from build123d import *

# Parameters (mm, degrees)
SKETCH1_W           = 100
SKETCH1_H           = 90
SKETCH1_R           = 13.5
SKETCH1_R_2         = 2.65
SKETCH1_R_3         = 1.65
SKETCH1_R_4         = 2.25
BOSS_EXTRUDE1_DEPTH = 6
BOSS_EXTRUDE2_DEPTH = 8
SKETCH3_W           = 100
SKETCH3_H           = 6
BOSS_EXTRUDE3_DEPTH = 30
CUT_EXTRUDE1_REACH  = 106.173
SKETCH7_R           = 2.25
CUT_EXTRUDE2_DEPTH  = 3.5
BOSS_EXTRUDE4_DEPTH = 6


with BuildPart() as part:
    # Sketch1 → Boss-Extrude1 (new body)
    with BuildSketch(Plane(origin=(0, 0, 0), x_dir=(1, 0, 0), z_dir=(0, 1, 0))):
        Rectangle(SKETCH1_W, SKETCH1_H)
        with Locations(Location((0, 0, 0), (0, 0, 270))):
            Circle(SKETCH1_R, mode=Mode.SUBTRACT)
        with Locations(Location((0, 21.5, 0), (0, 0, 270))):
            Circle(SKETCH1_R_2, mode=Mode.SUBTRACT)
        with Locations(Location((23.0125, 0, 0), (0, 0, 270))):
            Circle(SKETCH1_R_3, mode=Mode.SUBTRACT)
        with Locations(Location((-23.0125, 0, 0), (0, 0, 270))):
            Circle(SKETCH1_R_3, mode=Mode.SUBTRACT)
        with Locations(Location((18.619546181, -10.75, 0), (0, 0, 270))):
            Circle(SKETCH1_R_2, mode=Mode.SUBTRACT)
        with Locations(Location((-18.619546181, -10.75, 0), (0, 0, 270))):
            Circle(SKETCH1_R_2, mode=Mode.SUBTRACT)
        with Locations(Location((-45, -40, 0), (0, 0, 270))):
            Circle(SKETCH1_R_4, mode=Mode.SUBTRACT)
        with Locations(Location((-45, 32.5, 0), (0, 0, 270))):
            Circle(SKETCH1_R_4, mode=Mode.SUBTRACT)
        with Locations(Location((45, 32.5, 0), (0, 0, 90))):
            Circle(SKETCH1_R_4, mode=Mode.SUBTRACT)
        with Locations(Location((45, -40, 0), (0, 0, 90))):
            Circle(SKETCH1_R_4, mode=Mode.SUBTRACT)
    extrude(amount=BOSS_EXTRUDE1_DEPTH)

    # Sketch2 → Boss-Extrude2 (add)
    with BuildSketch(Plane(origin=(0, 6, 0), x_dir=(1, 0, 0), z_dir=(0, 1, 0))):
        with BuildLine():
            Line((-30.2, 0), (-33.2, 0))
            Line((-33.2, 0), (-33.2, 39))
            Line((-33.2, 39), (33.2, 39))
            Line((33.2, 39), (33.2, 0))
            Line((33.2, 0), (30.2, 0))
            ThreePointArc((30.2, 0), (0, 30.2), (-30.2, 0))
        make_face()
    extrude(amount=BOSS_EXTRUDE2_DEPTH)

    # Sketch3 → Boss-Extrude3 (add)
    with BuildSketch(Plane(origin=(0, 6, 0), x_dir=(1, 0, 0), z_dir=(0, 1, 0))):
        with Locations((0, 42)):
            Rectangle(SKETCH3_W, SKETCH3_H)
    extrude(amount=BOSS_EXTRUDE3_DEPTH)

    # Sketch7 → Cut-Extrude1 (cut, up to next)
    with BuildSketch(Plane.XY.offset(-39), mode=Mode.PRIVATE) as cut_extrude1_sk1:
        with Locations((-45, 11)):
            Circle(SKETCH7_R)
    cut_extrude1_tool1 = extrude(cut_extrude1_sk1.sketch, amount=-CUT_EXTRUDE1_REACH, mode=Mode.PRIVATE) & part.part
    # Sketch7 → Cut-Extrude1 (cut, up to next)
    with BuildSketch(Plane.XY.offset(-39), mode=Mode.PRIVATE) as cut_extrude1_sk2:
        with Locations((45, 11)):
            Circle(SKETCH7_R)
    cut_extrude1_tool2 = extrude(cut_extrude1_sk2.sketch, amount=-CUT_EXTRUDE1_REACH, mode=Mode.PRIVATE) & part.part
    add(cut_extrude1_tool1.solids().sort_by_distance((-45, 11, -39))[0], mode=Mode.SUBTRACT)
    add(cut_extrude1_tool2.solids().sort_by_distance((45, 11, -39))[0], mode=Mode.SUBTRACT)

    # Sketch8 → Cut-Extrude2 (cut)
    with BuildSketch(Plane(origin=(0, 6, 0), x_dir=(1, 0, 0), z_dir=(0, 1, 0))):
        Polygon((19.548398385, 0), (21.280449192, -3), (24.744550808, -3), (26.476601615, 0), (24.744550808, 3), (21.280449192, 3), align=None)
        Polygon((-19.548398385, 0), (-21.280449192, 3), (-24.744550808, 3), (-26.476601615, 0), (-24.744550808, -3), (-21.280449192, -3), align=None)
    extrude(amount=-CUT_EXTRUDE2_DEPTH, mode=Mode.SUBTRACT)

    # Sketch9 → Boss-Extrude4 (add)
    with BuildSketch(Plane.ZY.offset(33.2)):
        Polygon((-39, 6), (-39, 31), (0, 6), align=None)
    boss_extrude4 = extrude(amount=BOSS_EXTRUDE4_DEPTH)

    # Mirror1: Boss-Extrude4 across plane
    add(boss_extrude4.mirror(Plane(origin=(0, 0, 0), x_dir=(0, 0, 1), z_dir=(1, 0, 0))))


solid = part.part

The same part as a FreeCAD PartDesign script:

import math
import FreeCAD as App
import Part
import Sketcher
Q = App.Units.Quantity


def add_polygon(sketch, points):
    """Adds a closed chain of lines whose ends are joined by coincident constraints."""
    first, n = sketch.GeometryCount, len(points)
    for a, b in zip(points, points[1:] + points[:1]):
        sketch.addGeometry(Part.LineSegment(App.Vector(*a, 0), App.Vector(*b, 0)), False)
    for i in range(n):
        sketch.addConstraint(Sketcher.Constraint("Coincident", first + i, 2, first + (i + 1) % n, 1))

doc = App.newDocument("Part")
body = doc.addObject("PartDesign::Body", "Body")

# Sketch on XZ plane
sketch1 = doc.addObject("Sketcher::SketchObject", "Sketch")
body.addObject(sketch1)
sketch1.AttachmentSupport = (doc.XZ_Plane, [""])
sketch1.MapMode = "FlatFace"
add_polygon(sketch1, [(-50, -45), (-50, 45), (50, 45), (50, -45)])  # lines 0-3
sketch1.addGeometry(Part.Circle(App.Vector(-45, 40, 0), App.Vector(0, 0, 1), 2.2), False)  # 4
sketch1.addGeometry(Part.Circle(App.Vector(-18.6, 10.8, 0), App.Vector(0, 0, 1), 2.6), False)  # 5
sketch1.addGeometry(Part.Circle(App.Vector(45, 40, 0), App.Vector(0, 0, 1), 2.2), False)  # 6
sketch1.addGeometry(Part.Circle(App.Vector(18.6, 10.8, 0), App.Vector(0, 0, 1), 2.6), False)  # 7
sketch1.addGeometry(Part.Circle(App.Vector(-23, 0, 0), App.Vector(0, 0, 1), 1.6), False)  # 8
sketch1.addGeometry(Part.Circle(App.Vector(-45, -32.5, 0), App.Vector(0, 0, 1), 2.2), False)  # 9
sketch1.addGeometry(Part.Circle(App.Vector(0, 0, 0), App.Vector(0, 0, 1), 13.5), False)  # 10
sketch1.addGeometry(Part.Circle(App.Vector(23, 0, 0), App.Vector(0, 0, 1), 1.6), False)  # 11
sketch1.addGeometry(Part.Circle(App.Vector(0, -21.5, 0), App.Vector(0, 0, 1), 2.6), False)  # 12
sketch1.addGeometry(Part.Circle(App.Vector(45, -32.5, 0), App.Vector(0, 0, 1), 2.2), False)  # 13
sketch1.addConstraint(Sketcher.Constraint("Vertical", 0))
sketch1.addConstraint(Sketcher.Constraint("Horizontal", 1))
sketch1.addConstraint(Sketcher.Constraint("Vertical", 2))
sketch1.addConstraint(Sketcher.Constraint("Horizontal", 3))
sketch1.addConstraint(Sketcher.Constraint("Coincident", 10, 3, -1, 1))
sketch1.addConstraint(Sketcher.Constraint("Equal", 4, 6))
sketch1.addConstraint(Sketcher.Constraint("Equal", 5, 7))
sketch1.addConstraint(Sketcher.Constraint("Equal", 6, 9))
sketch1.addConstraint(Sketcher.Constraint("Equal", 8, 11))
sketch1.addConstraint(Sketcher.Constraint("Equal", 7, 12))
sketch1.addConstraint(Sketcher.Constraint("Equal", 9, 13))
sketch1.addConstraint(Sketcher.Constraint("Symmetric", 8, 3, 11, 3, -1, 1))
sketch1.addConstraint(Sketcher.Constraint("Symmetric", 0, 2, 2, 2, -1, 1))
sketch1.addConstraint(Sketcher.Constraint("Symmetric", 4, 3, 6, 3, -2))
sketch1.addConstraint(Sketcher.Constraint("Symmetric", 5, 3, 7, 3, -2))
sketch1.addConstraint(Sketcher.Constraint("Symmetric", 9, 3, 13, 3, -2))
sketch1.addConstraint(Sketcher.Constraint("PointOnObject", 8, 3, -1))
sketch1.addConstraint(Sketcher.Constraint("PointOnObject", 12, 3, -2))
sketch1.addConstraint(Sketcher.Constraint("Vertical", 4, 3, 9, 3))
sketch1.addConstraint(Sketcher.Constraint("Diameter", 10, Q("27 mm")))
sketch1.addConstraint(Sketcher.Constraint("Diameter", 4, Q("4.5 mm")))
sketch1.addConstraint(Sketcher.Constraint("Diameter", 5, Q("5.3 mm")))
sketch1.addConstraint(Sketcher.Constraint("Diameter", 8, Q("3.3 mm")))
sketch1.addConstraint(Sketcher.Constraint("DistanceX", 1, 1, 1, 2, Q("100 mm")))
sketch1.addConstraint(Sketcher.Constraint("DistanceY", 0, 1, 0, 2, Q("90 mm")))
sketch1.addConstraint(Sketcher.Constraint("DistanceX", 4, 3, -1, 1, Q("45 mm")))
sketch1.addConstraint(Sketcher.Constraint("DistanceY", -1, 1, 4, 3, Q("40 mm")))
sketch1.addConstraint(Sketcher.Constraint("DistanceY", 13, 3, 12, 3, Q("11 mm")))
sketch1.addConstraint(Sketcher.Constraint("DistanceY", 9, 3, -1, 1, Q("32.5 mm")))
sketch1.addConstraint(Sketcher.Constraint("DistanceY", -1, 1, 5, 3, Q("10.75 mm")))
sketch1.addConstraint(Sketcher.Constraint("DistanceX", 8, 3, 11, 3, Q("46.025 mm")))
sketch1.addConstraint(Sketcher.Constraint("DistanceX", 5, 3, -1, 1, Q("18.619546 mm")))
pad1 = doc.addObject("PartDesign::Pad", "Pad")
body.addObject(pad1)
pad1.Profile = sketch1
pad1.Length = 6
pad1.Reversed = True

# Sketch on XZ plane
sketch2 = doc.addObject("Sketcher::SketchObject", "Sketch001")
body.addObject(sketch2)
sketch2.AttachmentSupport = (doc.XZ_Plane, [""])
sketch2.MapMode = "FlatFace"
sketch2.AttachmentOffset = App.Placement(App.Vector(0, 0, -6), App.Rotation())
sketch2.addGeometry(Part.LineSegment(App.Vector(-33.2, 0, 0), App.Vector(-30.2, 0, 0)), False)
sketch2.addGeometry(Part.ArcOfCircle(Part.Circle(App.Vector(0, 0, 0), App.Vector(0, 0, 1), 30.2), math.radians(180), math.radians(360)), False)
sketch2.addGeometry(Part.LineSegment(App.Vector(30.2, 0, 0), App.Vector(33.2, 0, 0)), False)
sketch2.addGeometry(Part.LineSegment(App.Vector(33.2, 0, 0), App.Vector(33.2, -39, 0)), False)
sketch2.addGeometry(Part.LineSegment(App.Vector(33.2, -39, 0), App.Vector(-33.2, -39, 0)), False)
sketch2.addGeometry(Part.LineSegment(App.Vector(-33.2, -39, 0), App.Vector(-33.2, 0, 0)), False)
sketch2.addConstraint(Sketcher.Constraint("Coincident", 0, 2, 1, 1))
sketch2.addConstraint(Sketcher.Constraint("Coincident", 1, 2, 2, 1))
sketch2.addConstraint(Sketcher.Constraint("Coincident", 2, 2, 3, 1))
sketch2.addConstraint(Sketcher.Constraint("Coincident", 3, 2, 4, 1))
sketch2.addConstraint(Sketcher.Constraint("Coincident", 4, 2, 5, 1))
sketch2.addConstraint(Sketcher.Constraint("Coincident", 5, 2, 0, 1))
sketch2.addConstraint(Sketcher.Constraint("Horizontal", 0))
sketch2.addConstraint(Sketcher.Constraint("Horizontal", 2))
sketch2.addConstraint(Sketcher.Constraint("Vertical", 3))
sketch2.addConstraint(Sketcher.Constraint("Horizontal", 4))
sketch2.addConstraint(Sketcher.Constraint("Vertical", 5))
sketch2.addConstraint(Sketcher.Constraint("Coincident", 1, 3, -1, 1))
sketch2.addConstraint(Sketcher.Constraint("Symmetric", 2, 2, 5, 2, -1, 1))
sketch2.addConstraint(Sketcher.Constraint("PointOnObject", 0, 2, -1))
sketch2.addConstraint(Sketcher.Constraint("Radius", 1, Q("30.2 mm")))
sketch2.addConstraint(Sketcher.Constraint("DistanceX", 0, 1, 0, 2, Q("3 mm")))
sketch2.addConstraint(Sketcher.Constraint("DistanceY", 3, 2, 3, 1, Q("39 mm")))
pad2 = doc.addObject("PartDesign::Pad", "Pad001")
body.addObject(pad2)
pad2.Profile = sketch2
pad2.Length = 8
pad2.Reversed = True

# Sketch on XZ plane
sketch3 = doc.addObject("Sketcher::SketchObject", "Sketch002")
body.addObject(sketch3)
sketch3.AttachmentSupport = (doc.XZ_Plane, [""])
sketch3.MapMode = "FlatFace"
sketch3.AttachmentOffset = App.Placement(App.Vector(0, 0, -6), App.Rotation())
add_polygon(sketch3, [(-50, -45), (-50, -39), (50, -39), (50, -45)])  # lines 0-3
sketch3.addConstraint(Sketcher.Constraint("Vertical", 0))
sketch3.addConstraint(Sketcher.Constraint("Horizontal", 1))
sketch3.addConstraint(Sketcher.Constraint("Vertical", 2))
sketch3.addConstraint(Sketcher.Constraint("Horizontal", 3))
sketch3.addConstraint(Sketcher.Constraint("DistanceX", 1, 1, 1, 2, Q("100 mm")))
sketch3.addConstraint(Sketcher.Constraint("DistanceY", 0, 1, 0, 2, Q("6 mm")))
sketch3.addConstraint(Sketcher.Constraint("DistanceX", 0, 2, -1, 1, Q("50 mm")))
sketch3.addConstraint(Sketcher.Constraint("DistanceY", 0, 2, -1, 1, Q("39 mm")))
pad3 = doc.addObject("PartDesign::Pad", "Pad002")
body.addObject(pad3)
pad3.Profile = sketch3
pad3.Length = 30
pad3.Reversed = True

# Sketch on XY plane
sketch4 = doc.addObject("Sketcher::SketchObject", "Sketch003")
body.addObject(sketch4)
sketch4.AttachmentSupport = (doc.XY_Plane, [""])
sketch4.MapMode = "FlatFace"
sketch4.AttachmentOffset = App.Placement(App.Vector(0, 0, -39), App.Rotation())
sketch4.addGeometry(Part.Circle(App.Vector(-45, 11, 0), App.Vector(0, 0, 1), 2.2), False)
sketch4.addConstraint(Sketcher.Constraint("Diameter", 0, Q("4.5 mm")))
sketch4.addConstraint(Sketcher.Constraint("DistanceX", 0, 3, -1, 1, Q("45 mm")))
sketch4.addConstraint(Sketcher.Constraint("DistanceY", -1, 1, 0, 3, Q("11 mm")))
pocket1 = doc.addObject("PartDesign::Pocket", "Pocket")
body.addObject(pocket1)
pocket1.Profile = sketch4
pocket1.Type = "UpToFirst"

# Sketch on XY plane
sketch5 = doc.addObject("Sketcher::SketchObject", "Sketch004")
body.addObject(sketch5)
sketch5.AttachmentSupport = (doc.XY_Plane, [""])
sketch5.MapMode = "FlatFace"
sketch5.AttachmentOffset = App.Placement(App.Vector(0, 0, -39), App.Rotation())
sketch5.addGeometry(Part.Circle(App.Vector(45, 11, 0), App.Vector(0, 0, 1), 2.2), False)
sketch5.addConstraint(Sketcher.Constraint("Diameter", 0, Q("4.5 mm")))
sketch5.addConstraint(Sketcher.Constraint("DistanceX", -1, 1, 0, 3, Q("45 mm")))
sketch5.addConstraint(Sketcher.Constraint("DistanceY", -1, 1, 0, 3, Q("11 mm")))
pocket2 = doc.addObject("PartDesign::Pocket", "Pocket001")
body.addObject(pocket2)
pocket2.Profile = sketch5
pocket2.Type = "UpToFirst"

# Sketch on XZ plane
sketch6 = doc.addObject("Sketcher::SketchObject", "Sketch005")
body.addObject(sketch6)
sketch6.AttachmentSupport = (doc.XZ_Plane, [""])
sketch6.MapMode = "FlatFace"
sketch6.AttachmentOffset = App.Placement(App.Vector(0, 0, -6), App.Rotation())
add_polygon(sketch6, [(19.5, 0), (21.3, 3), (24.7, 3), (26.5, 0), (24.7, -3), (21.3, -3)])  # lines 0-5
add_polygon(sketch6, [(-19.5, 0), (-21.3, -3), (-24.7, -3), (-26.5, 0), (-24.7, 3), (-21.3, 3)])  # lines 6-11
sketch6.addConstraint(Sketcher.Constraint("Horizontal", 1))
sketch6.addConstraint(Sketcher.Constraint("Horizontal", 4))
sketch6.addConstraint(Sketcher.Constraint("Horizontal", 7))
sketch6.addConstraint(Sketcher.Constraint("Horizontal", 10))
sketch6.addConstraint(Sketcher.Constraint("Symmetric", 0, 2, 6, 2, -1, 1))
sketch6.addConstraint(Sketcher.Constraint("Symmetric", 2, 2, 8, 2, -1, 1))
sketch6.addConstraint(Sketcher.Constraint("Symmetric", 3, 2, 9, 2, -1, 1))
sketch6.addConstraint(Sketcher.Constraint("Symmetric", 5, 2, 11, 2, -1, 1))
sketch6.addConstraint(Sketcher.Constraint("Symmetric", 4, 2, 6, 2, -2))
sketch6.addConstraint(Sketcher.Constraint("PointOnObject", 2, 2, -1))
sketch6.addConstraint(Sketcher.Constraint("PointOnObject", 5, 2, -1))
sketch6.addConstraint(Sketcher.Constraint("Parallel", 0, 3))
sketch6.addConstraint(Sketcher.Constraint("Parallel", 2, 5))
sketch6.addConstraint(Sketcher.Constraint("Parallel", 5, 8))
sketch6.addConstraint(Sketcher.Constraint("Parallel", 8, 11))
sketch6.addConstraint(Sketcher.Constraint("Angle", 0, Q("60 deg")))
sketch6.addConstraint(Sketcher.Constraint("DistanceY", -1, 1, 0, 2, Q("3 mm")))
sketch6.addConstraint(Sketcher.Constraint("DistanceX", 1, 1, 1, 2, Q("3.464102 mm")))
sketch6.addConstraint(Sketcher.Constraint("DistanceX", 6, 2, 3, 2, Q("46.025 mm")))
pocket3 = doc.addObject("PartDesign::Pocket", "Pocket002")
body.addObject(pocket3)
pocket3.Profile = sketch6
pocket3.Length = 3.5
pocket3.Reversed = True

# Sketch on YZ plane
sketch7 = doc.addObject("Sketcher::SketchObject", "Sketch006")
body.addObject(sketch7)
sketch7.AttachmentSupport = (doc.YZ_Plane, [""])
sketch7.MapMode = "FlatFace"
sketch7.AttachmentOffset = App.Placement(App.Vector(0, 0, -33.2), App.Rotation())
add_polygon(sketch7, [(31, -39), (6, -39), (6, 0)])  # lines 0-2
sketch7.addConstraint(Sketcher.Constraint("Horizontal", 0))
sketch7.addConstraint(Sketcher.Constraint("Vertical", 1))
sketch7.addConstraint(Sketcher.Constraint("PointOnObject", 1, 2, -1))
sketch7.addConstraint(Sketcher.Constraint("DistanceX", 0, 2, 0, 1, Q("25 mm")))
sketch7.addConstraint(Sketcher.Constraint("DistanceY", 1, 1, 1, 2, Q("39 mm")))
sketch7.addConstraint(Sketcher.Constraint("DistanceX", -1, 1, 0, 2, Q("6 mm")))
pad4 = doc.addObject("PartDesign::Pad", "Pad003")
body.addObject(pad4)
pad4.Profile = sketch7
pad4.Length = 6
pad4.Reversed = True
doc.recompute()

mirrored = doc.addObject("PartDesign::Mirrored", "Mirrored")
body.addObject(mirrored)
mirrored.Originals = [pad4]
mirrored.MirrorPlane = (doc.YZ_Plane, [""])
body.Tip = mirrored

doc.recompute()
